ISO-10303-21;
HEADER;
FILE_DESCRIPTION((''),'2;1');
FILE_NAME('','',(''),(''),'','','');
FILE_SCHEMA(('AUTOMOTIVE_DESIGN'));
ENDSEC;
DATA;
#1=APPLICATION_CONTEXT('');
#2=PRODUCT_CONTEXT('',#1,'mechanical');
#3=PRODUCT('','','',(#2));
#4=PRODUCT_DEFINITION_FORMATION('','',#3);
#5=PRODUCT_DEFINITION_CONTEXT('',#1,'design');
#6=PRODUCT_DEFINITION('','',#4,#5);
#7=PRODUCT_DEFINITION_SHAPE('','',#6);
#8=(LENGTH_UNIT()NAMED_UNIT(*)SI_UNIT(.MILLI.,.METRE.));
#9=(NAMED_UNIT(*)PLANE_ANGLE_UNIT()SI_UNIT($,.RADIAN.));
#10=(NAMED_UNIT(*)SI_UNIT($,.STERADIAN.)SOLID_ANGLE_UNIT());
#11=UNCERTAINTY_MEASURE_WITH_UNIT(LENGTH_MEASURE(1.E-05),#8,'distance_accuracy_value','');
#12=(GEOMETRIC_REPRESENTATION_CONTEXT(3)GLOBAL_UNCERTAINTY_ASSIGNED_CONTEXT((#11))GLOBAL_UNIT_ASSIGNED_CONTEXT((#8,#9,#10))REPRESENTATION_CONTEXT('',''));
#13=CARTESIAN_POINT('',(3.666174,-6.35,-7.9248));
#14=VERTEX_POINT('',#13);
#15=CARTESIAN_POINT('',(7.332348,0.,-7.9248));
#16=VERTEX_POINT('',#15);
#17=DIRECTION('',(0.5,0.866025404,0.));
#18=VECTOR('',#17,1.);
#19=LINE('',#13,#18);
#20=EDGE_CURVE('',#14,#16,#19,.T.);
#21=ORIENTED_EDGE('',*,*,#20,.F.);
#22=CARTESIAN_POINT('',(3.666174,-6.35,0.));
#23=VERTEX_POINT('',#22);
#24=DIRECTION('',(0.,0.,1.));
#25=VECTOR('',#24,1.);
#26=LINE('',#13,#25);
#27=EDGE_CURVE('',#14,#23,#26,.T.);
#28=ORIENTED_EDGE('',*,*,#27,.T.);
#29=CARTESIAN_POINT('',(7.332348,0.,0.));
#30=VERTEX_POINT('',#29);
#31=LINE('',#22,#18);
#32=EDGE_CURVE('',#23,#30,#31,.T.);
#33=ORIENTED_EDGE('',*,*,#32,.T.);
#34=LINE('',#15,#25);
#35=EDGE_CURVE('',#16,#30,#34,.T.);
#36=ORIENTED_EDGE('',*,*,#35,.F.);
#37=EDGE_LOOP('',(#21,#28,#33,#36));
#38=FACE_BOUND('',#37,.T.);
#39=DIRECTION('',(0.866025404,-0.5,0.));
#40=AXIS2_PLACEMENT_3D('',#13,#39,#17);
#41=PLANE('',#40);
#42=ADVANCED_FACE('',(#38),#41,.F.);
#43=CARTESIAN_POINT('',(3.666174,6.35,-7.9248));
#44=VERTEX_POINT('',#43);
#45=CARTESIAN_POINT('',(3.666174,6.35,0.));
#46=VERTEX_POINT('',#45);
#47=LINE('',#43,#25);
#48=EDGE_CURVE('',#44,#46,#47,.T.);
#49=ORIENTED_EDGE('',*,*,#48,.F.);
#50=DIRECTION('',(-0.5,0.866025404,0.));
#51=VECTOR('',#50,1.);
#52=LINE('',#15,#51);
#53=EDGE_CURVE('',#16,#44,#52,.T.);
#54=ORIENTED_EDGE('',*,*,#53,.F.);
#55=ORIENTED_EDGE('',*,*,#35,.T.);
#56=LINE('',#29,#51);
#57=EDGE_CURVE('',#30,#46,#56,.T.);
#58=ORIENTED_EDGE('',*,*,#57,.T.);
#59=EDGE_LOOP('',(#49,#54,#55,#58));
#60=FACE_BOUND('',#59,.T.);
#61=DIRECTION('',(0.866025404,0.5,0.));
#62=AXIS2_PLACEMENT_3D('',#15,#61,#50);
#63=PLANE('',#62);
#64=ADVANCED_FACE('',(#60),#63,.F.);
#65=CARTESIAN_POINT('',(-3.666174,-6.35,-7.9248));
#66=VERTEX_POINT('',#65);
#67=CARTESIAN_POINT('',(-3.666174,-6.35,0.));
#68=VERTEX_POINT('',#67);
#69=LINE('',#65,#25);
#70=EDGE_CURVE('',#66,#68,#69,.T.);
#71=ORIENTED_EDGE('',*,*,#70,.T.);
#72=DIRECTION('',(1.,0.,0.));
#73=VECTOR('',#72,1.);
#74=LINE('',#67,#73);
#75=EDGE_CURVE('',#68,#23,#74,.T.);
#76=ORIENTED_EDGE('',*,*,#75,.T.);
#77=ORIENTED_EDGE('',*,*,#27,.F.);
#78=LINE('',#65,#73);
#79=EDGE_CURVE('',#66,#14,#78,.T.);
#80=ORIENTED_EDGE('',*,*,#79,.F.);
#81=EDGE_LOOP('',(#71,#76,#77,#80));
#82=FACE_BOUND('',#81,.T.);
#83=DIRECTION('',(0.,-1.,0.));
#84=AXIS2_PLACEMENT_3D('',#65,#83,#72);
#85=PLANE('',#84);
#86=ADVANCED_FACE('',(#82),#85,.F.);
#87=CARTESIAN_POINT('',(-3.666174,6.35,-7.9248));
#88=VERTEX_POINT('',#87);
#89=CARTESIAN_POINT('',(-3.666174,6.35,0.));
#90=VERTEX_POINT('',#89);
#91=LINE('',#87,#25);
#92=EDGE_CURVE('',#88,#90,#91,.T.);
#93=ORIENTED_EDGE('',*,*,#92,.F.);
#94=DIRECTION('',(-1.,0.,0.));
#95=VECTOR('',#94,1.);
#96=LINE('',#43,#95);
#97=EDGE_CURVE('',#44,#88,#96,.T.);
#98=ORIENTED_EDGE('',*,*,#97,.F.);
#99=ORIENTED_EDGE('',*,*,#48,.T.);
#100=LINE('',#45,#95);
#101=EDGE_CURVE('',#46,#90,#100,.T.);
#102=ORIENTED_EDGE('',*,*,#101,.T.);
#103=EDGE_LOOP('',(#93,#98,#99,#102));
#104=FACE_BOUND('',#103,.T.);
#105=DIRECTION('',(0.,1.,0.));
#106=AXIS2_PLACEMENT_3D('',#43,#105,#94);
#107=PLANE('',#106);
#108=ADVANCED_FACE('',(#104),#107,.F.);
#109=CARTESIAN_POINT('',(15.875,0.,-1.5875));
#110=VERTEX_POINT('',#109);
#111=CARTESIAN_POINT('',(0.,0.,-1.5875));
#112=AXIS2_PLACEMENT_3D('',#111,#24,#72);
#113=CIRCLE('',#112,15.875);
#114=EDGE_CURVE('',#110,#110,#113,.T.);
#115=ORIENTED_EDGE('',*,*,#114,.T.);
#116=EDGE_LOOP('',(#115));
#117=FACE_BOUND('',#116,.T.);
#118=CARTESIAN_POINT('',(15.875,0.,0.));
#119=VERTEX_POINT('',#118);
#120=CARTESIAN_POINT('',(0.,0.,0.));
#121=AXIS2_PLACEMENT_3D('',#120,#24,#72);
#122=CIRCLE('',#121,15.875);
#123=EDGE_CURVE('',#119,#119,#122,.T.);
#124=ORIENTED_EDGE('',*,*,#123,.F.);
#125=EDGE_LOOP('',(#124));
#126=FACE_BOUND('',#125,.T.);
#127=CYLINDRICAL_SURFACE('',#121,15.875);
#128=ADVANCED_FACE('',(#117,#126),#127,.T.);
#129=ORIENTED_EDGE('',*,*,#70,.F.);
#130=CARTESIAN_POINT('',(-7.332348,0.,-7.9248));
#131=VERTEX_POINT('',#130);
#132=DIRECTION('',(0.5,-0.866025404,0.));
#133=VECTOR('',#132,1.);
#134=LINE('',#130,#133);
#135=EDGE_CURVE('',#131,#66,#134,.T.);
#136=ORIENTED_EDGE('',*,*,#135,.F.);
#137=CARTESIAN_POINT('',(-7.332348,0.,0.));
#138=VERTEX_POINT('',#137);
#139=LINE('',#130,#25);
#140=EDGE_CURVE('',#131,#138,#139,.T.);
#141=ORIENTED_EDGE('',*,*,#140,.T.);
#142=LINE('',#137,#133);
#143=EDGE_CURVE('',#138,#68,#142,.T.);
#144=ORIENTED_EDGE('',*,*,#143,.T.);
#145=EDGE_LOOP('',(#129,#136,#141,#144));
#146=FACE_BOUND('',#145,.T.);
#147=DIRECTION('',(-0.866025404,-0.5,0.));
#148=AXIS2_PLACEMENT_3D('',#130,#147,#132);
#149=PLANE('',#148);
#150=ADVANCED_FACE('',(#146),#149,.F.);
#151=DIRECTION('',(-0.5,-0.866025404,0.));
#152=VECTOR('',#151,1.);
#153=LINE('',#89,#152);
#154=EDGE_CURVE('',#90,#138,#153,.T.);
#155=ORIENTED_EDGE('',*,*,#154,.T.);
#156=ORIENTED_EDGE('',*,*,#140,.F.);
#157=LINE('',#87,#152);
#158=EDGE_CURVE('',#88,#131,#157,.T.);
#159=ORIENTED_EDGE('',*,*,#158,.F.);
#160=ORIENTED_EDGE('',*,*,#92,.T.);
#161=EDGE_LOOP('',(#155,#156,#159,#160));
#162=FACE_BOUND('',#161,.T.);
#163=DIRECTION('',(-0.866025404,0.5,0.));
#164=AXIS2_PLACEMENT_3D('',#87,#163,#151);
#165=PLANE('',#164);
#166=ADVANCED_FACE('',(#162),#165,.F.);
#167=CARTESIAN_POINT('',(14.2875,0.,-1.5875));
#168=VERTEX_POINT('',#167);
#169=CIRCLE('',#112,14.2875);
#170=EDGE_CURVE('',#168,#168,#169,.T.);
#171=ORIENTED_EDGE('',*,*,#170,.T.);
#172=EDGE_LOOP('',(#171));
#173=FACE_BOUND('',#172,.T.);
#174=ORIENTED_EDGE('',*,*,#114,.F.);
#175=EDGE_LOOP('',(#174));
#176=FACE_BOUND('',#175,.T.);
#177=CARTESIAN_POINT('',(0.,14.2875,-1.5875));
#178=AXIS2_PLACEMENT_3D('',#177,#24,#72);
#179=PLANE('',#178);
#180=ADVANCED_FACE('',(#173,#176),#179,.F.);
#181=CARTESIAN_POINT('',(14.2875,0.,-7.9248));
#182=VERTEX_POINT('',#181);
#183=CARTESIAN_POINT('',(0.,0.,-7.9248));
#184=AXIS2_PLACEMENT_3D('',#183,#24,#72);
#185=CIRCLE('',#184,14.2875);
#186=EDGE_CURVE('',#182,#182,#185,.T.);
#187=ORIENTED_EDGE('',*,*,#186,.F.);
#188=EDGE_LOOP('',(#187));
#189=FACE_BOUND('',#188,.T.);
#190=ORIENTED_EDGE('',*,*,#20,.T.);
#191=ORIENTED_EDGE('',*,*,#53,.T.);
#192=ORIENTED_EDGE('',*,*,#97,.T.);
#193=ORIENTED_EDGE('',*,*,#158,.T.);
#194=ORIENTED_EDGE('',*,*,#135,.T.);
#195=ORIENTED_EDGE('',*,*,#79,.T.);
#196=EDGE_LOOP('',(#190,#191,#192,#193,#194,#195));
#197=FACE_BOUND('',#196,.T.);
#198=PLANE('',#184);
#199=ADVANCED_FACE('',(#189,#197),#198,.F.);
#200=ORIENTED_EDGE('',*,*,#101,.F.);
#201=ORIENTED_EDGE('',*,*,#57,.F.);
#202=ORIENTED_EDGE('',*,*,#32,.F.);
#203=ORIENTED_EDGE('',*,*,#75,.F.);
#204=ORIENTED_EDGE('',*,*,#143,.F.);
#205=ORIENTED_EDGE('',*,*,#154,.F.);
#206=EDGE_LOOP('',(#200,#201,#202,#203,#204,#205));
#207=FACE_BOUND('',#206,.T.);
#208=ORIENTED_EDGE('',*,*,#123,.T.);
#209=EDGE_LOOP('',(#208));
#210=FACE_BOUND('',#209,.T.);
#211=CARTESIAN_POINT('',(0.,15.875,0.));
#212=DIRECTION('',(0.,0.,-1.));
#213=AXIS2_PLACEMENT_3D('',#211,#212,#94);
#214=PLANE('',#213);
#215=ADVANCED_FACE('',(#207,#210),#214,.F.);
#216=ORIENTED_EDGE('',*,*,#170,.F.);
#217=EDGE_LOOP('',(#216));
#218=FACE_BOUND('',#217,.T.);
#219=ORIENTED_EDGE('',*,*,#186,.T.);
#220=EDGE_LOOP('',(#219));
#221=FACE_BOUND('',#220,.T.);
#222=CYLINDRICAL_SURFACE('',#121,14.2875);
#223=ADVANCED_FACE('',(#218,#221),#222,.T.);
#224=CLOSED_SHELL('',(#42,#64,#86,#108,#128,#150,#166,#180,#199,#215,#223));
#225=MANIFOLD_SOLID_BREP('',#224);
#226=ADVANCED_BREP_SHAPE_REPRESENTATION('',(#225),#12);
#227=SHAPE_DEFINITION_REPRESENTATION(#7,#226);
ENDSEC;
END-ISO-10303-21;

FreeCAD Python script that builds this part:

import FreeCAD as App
import Part
import Sketcher
from FreeCAD import Vector
Q = App.Units.Quantity

doc = App.newDocument("Part")
params = doc.addObject("Spreadsheet::Sheet", "Params")
for row, (alias, value) in enumerate([
    ("sketch1_width", "0.625 in"),
    ("sketch1_width2", "0.5625 in"),
    ("sketch1_height", "0.312 in"),
    ("revolution_angle", "360 deg"),
], start=1):
    params.set(f"A{row}", alias)
    params.set(f"B{row}", "=" + value)
    params.setAlias(f"B{row}", alias)

body = doc.addObject("PartDesign::Body", "Body")

# Sketch on YZ plane
sketch1 = body.newObject("Sketcher::SketchObject", "Sketch")
sketch1.AttachmentSupport = (doc.getObject("YZ_Plane"), [""])
sketch1.MapMode = "FlatFace"
sketch1.addGeometry(Part.LineSegment(Vector(15.875, 0, 0), Vector(0, 0, 0)), False)
sketch1.addGeometry(Part.LineSegment(Vector(0, 0, 0), Vector(0, -7.9248, 0)), False)
sketch1.addGeometry(Part.LineSegment(Vector(0, -7.9248, 0), Vector(14.2875, -7.9248, 0)), False)
sketch1.addGeometry(Part.LineSegment(Vector(14.2875, -7.9248, 0), Vector(14.2875, -1.5875, 0)), False)
sketch1.addGeometry(Part.LineSegment(Vector(14.2875, -1.5875, 0), Vector(15.875, -1.5875, 0)), False)
sketch1.addGeometry(Part.LineSegment(Vector(15.875, -1.5875, 0), Vector(15.875, 0, 0)), False)
sketch1.addConstraint(Sketcher.Constraint("Coincident", 0, 2, 1, 1))
sketch1.addConstraint(Sketcher.Constraint("Coincident", 1, 2, 2, 1))
sketch1.addConstraint(Sketcher.Constraint("Coincident", 2, 2, 3, 1))
sketch1.addConstraint(Sketcher.Constraint("Coincident", 3, 2, 4, 1))
sketch1.addConstraint(Sketcher.Constraint("Coincident", 4, 2, 5, 1))
sketch1.addConstraint(Sketcher.Constraint("Coincident", 5, 2, 0, 1))
sketch1.addConstraint(Sketcher.Constraint("Horizontal", 0))
sketch1.addConstraint(Sketcher.Constraint("Vertical", 1))
sketch1.addConstraint(Sketcher.Constraint("Horizontal", 2))
sketch1.addConstraint(Sketcher.Constraint("Vertical", 3))
sketch1.addConstraint(Sketcher.Constraint("Horizontal", 4))
sketch1.addConstraint(Sketcher.Constraint("Vertical", 5))
sketch1.addConstraint(Sketcher.Constraint("Coincident", 0, 2, -1, 1))
sketch1.addConstraint(Sketcher.Constraint("Equal", 4, 5))
sketch1.addConstraint(Sketcher.Constraint("DistanceX", 0, 2, 0, 1, Q("0.625 in")))
sketch1.addConstraint(Sketcher.Constraint("DistanceX", 2, 1, 2, 2, Q("0.5625 in")))
sketch1.addConstraint(Sketcher.Constraint("DistanceY", 1, 2, 1, 1, Q("0.312 in")))
sketch1.setExpression("Constraints[14]", "Params.sketch1_width")
sketch1.setExpression("Constraints[15]", "Params.sketch1_width2")
sketch1.setExpression("Constraints[16]", "Params.sketch1_height")
revolution = body.newObject("PartDesign::Revolution", "Revolution")
revolution.Profile = sketch1
revolution.ReferenceAxis = (sketch1, ["V_Axis"])
revolution.setExpression("Angle", "Params.revolution_angle")

# Sketch on XY plane
sketch2 = body.newObject("Sketcher::SketchObject", "Sketch001")
sketch2.AttachmentSupport = (doc.getObject("XY_Plane"), [""])
sketch2.MapMode = "FlatFace"
sketch2.addGeometry(Part.LineSegment(Vector(7.332348, 0, 0), Vector(3.666174, 6.35, 0)), False)
sketch2.addGeometry(Part.LineSegment(Vector(3.666174, 6.35, 0), Vector(-3.666174, 6.35, 0)), False)
sketch2.addGeometry(Part.LineSegment(Vector(-3.666174, 6.35, 0), Vector(-7.332348, 0, 0)), False)
sketch2.addGeometry(Part.LineSegment(Vector(-7.332348, 0, 0), Vector(-3.666174, -6.35, 0)), False)
sketch2.addGeometry(Part.LineSegment(Vector(-3.666174, -6.35, 0), Vector(3.666174, -6.35, 0)), False)
sketch2.addGeometry(Part.LineSegment(Vector(3.666174, -6.35, 0), Vector(7.332348, 0, 0)), False)
sketch2.addConstraint(Sketcher.Constraint("Coincident", 0, 2, 1, 1))
sketch2.addConstraint(Sketcher.Constraint("Coincident", 1, 2, 2, 1))
sketch2.addConstraint(Sketcher.Constraint("Coincident", 2, 2, 3, 1))
sketch2.addConstraint(Sketcher.Constraint("Coincident", 3, 2, 4, 1))
sketch2.addConstraint(Sketcher.Constraint("Coincident", 4, 2, 5, 1))
sketch2.addConstraint(Sketcher.Constraint("Coincident", 5, 2, 0, 1))
sketch2.addConstraint(Sketcher.Constraint("Horizontal", 1))
sketch2.addConstraint(Sketcher.Constraint("Horizontal", 4))
sketch2.addConstraint(Sketcher.Constraint("Symmetric", 0, 2, 3, 2, -1, 1))
sketch2.addConstraint(Sketcher.Constraint("Symmetric", 2, 2, 5, 2, -1, 1))
sketch2.addConstraint(Sketcher.Constraint("PointOnObject", 2, 2, -1))
sketch2.addConstraint(Sketcher.Constraint("Parallel", 2, 5))
sketch2.addConstraint(Sketcher.Constraint("Vertical", 1, 2, 3, 2))
sketch2.addConstraint(Sketcher.Constraint("Angle", 0, Q("120 deg")))
sketch2.addConstraint(Sketcher.Constraint("DistanceY", 3, 2, 1, 2, Q("0.5 in")))
sketch2.addConstraint(Sketcher.Constraint("DistanceX", 1, 2, 1, 1, Q("7.332348 mm")))
pocket1 = body.newObject("PartDesign::Pocket", "Pocket")
pocket1.Profile = sketch2
pocket1.Type = "ThroughAll"

doc.recompute()
